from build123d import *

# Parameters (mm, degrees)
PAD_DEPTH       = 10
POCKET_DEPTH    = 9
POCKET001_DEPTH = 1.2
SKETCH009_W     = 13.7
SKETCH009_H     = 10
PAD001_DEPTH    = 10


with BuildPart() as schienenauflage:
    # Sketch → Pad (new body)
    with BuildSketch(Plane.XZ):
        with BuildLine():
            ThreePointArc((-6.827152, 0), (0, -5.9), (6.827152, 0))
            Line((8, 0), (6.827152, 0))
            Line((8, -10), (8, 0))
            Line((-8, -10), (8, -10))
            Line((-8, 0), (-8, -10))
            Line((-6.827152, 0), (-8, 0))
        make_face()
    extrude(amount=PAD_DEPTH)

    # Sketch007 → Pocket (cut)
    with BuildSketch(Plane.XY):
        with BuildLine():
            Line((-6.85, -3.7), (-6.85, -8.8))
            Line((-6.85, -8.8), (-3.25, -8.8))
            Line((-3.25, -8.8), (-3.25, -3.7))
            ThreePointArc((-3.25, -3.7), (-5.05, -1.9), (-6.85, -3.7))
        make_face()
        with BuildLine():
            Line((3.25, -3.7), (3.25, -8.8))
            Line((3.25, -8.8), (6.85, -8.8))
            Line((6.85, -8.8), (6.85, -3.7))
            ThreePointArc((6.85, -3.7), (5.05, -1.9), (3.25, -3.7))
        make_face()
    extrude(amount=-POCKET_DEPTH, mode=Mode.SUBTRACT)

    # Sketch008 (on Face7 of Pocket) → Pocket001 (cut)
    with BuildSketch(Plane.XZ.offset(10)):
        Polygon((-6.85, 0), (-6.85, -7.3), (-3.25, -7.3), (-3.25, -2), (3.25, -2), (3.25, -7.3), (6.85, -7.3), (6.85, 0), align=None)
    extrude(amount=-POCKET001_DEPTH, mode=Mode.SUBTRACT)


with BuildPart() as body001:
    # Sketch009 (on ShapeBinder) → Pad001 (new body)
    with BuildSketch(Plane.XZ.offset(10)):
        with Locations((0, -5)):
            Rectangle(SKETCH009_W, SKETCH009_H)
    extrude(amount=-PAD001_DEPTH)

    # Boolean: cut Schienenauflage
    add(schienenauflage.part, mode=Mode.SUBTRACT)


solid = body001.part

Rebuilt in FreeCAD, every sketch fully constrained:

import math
import FreeCAD as App
import Part
import Sketcher
from FreeCAD import Vector
Q = App.Units.Quantity


def add_polygon(sketch, points):
    """Adds a closed chain of lines whose ends are joined by coincident constraints."""
    first, n = sketch.GeometryCount, len(points)
    for a, b in zip(points, points[1:] + points[:1]):
        sketch.addGeometry(Part.LineSegment(App.Vector(*a, 0), App.Vector(*b, 0)), False)
    for i in range(n):
        sketch.addConstraint(Sketcher.Constraint("Coincident", first + i, 2, first + (i + 1) % n, 1))

doc = App.newDocument("Part")
body = doc.addObject("PartDesign::Body", "Body")

# Sketch on XZ plane
sketch1 = body.newObject("Sketcher::SketchObject", "Sketch")
sketch1.AttachmentSupport = (doc.getObject("XZ_Plane"), [""])
sketch1.MapMode = "FlatFace"
sketch1.addGeometry([
    Part.ArcOfCircle(Part.Circle(Vector(0, 1, 0), Vector(0, 0, 1), 6.9), math.radians(-172), math.radians(-8)),  # 0
    Part.LineSegment(Vector(-6.8, 0, 0), Vector(-8, 0, 0)),  # 1
    Part.LineSegment(Vector(-8, 0, 0), Vector(-8, -10, 0)),  # 2
    Part.LineSegment(Vector(-8, -10, 0), Vector(8, -10, 0)),  # 3
    Part.LineSegment(Vector(8, -10, 0), Vector(8, 0, 0)),  # 4
    Part.LineSegment(Vector(8, 0, 0), Vector(6.8, 0, 0)),  # 5
], False)
sketch1.addConstraint([
    Sketcher.Constraint("Coincident", 0, 1, 1, 1),
    Sketcher.Constraint("Coincident", 1, 2, 2, 1),
    Sketcher.Constraint("Coincident", 2, 2, 3, 1),
    Sketcher.Constraint("Coincident", 3, 2, 4, 1),
    Sketcher.Constraint("Coincident", 4, 2, 5, 1),
    Sketcher.Constraint("Coincident", 5, 2, 0, 2),
    Sketcher.Constraint("Horizontal", 1),
    Sketcher.Constraint("Vertical", 2),
    Sketcher.Constraint("Horizontal", 3),
    Sketcher.Constraint("Vertical", 4),
    Sketcher.Constraint("Horizontal", 5),
    Sketcher.Constraint("Symmetric", 1, 2, 4, 2, -1, 1),
    Sketcher.Constraint("Symmetric", 0, 1, 5, 2, -2),
    Sketcher.Constraint("Radius", 0, Q("6.9 mm")),
    Sketcher.Constraint("DistanceX", 3, 1, 3, 2, Q("16 mm")),
    Sketcher.Constraint("DistanceY", 2, 2, 2, 1, Q("10 mm")),
    Sketcher.Constraint("DistanceY", -1, 1, 0, 3, Q("1 mm")),
])
pad1 = body.newObject("PartDesign::Pad", "Pad")
pad1.Profile = sketch1
pad1.Length = 10

# Sketch on XY plane
sketch2 = body.newObject("Sketcher::SketchObject", "Sketch001")
sketch2.AttachmentSupport = (doc.getObject("XY_Plane"), [""])
sketch2.MapMode = "FlatFace"
sketch2.addGeometry([
    Part.LineSegment(Vector(-6.8, -3.7, 0), Vector(-6.8, -8.8, 0)),  # 0
    Part.LineSegment(Vector(-6.8, -8.8, 0), Vector(-3.2, -8.8, 0)),  # 1
    Part.LineSegment(Vector(-3.2, -8.8, 0), Vector(-3.2, -3.7, 0)),  # 2
    Part.ArcOfCircle(Part.Circle(Vector(-5, -3.7, 0), Vector(0, 0, 1), 1.8), math.radians(0), math.radians(180)),  # 3
    Part.LineSegment(Vector(3.2, -3.7, 0), Vector(3.2, -8.8, 0)),  # 4
    Part.LineSegment(Vector(3.2, -8.8, 0), Vector(6.8, -8.8, 0)),  # 5
    Part.LineSegment(Vector(6.8, -8.8, 0), Vector(6.8, -3.7, 0)),  # 6
    Part.ArcOfCircle(Part.Circle(Vector(5, -3.7, 0), Vector(0, 0, 1), 1.8), math.radians(0), math.radians(180)),  # 7
], False)
sketch2.addConstraint([
    Sketcher.Constraint("Coincident", 0, 2, 1, 1),
    Sketcher.Constraint("Coincident", 1, 2, 2, 1),
    Sketcher.Constraint("Tangent", 2, 2, 3, 1),
    Sketcher.Constraint("Tangent", 3, 2, 0, 1),
    Sketcher.Constraint("Coincident", 4, 2, 5, 1),
    Sketcher.Constraint("Coincident", 5, 2, 6, 1),
    Sketcher.Constraint("Tangent", 6, 2, 7, 1),
    Sketcher.Constraint("Tangent", 7, 2, 4, 1),
    Sketcher.Constraint("Vertical", 0),
    Sketcher.Constraint("Horizontal", 1),
    Sketcher.Constraint("Vertical", 2),
    Sketcher.Constraint("Vertical", 4),
    Sketcher.Constraint("Horizontal", 5),
    Sketcher.Constraint("Vertical", 6),
    Sketcher.Constraint("Equal", 3, 7),
    Sketcher.Constraint("Symmetric", 3, 3, 7, 3, -2),
    Sketcher.Constraint("Horizontal", 1, 2, 4, 2),
    Sketcher.Constraint("Radius", 3, Q("1.8 mm")),
    Sketcher.Constraint("DistanceY", 0, 2, 0, 1, Q("5.1 mm")),
    Sketcher.Constraint("DistanceY", 3, 3, -1, 1, Q("3.7 mm")),
    Sketcher.Constraint("DistanceX", 3, 3, 7, 3, Q("10.1 mm")),
])
pocket1 = body.newObject("PartDesign::Pocket", "Pocket")
pocket1.Profile = sketch2
pocket1.Length = 9

# Sketch on XZ plane
sketch3 = body.newObject("Sketcher::SketchObject", "Sketch002")
sketch3.AttachmentSupport = (doc.getObject("XZ_Plane"), [""])
sketch3.MapMode = "FlatFace"
sketch3.AttachmentOffset = App.Placement(Vector(0, 0, 10), App.Rotation())
add_polygon(sketch3, [(-6.8, 0), (-6.8, -7.3), (-3.2, -7.3), (-3.2, -2), (3.2, -2), (3.2, -7.3), (6.8, -7.3), (6.8, 0)])  # lines 0-7
sketch3.addConstraint([
    Sketcher.Constraint("Vertical", 0),
    Sketcher.Constraint("Horizontal", 1),
    Sketcher.Constraint("Vertical", 2),
    Sketcher.Constraint("Horizontal", 3),
    Sketcher.Constraint("Vertical", 4),
    Sketcher.Constraint("Horizontal", 5),
    Sketcher.Constraint("Vertical", 6),
    Sketcher.Constraint("Horizontal", 7),
    Sketcher.Constraint("Symmetric", 6, 2, 7, 2, -1, 1),
    Sketcher.Constraint("Symmetric", 1, 2, 4, 2, -2),
    Sketcher.Constraint("DistanceX", 1, 1, 1, 2, Q("3.6 mm")),
    Sketcher.Constraint("DistanceX", 3, 1, 3, 2, Q("6.5 mm")),
    Sketcher.Constraint("DistanceY", 0, 2, 0, 1, Q("7.3 mm")),
    Sketcher.Constraint("DistanceY", 2, 1, 2, 2, Q("5.3 mm")),
])
pocket2 = body.newObject("PartDesign::Pocket", "Pocket001")
pocket2.Profile = sketch3
pocket2.Length = 1.2
body2 = doc.addObject("PartDesign::Body", "Body001")

# Sketch on XZ plane
sketch4 = body2.newObject("Sketcher::SketchObject", "Sketch003")
sketch4.AttachmentSupport = (doc.getObject("XZ_Plane001"), [""])
sketch4.MapMode = "FlatFace"
sketch4.AttachmentOffset = App.Placement(Vector(0, 0, 10), App.Rotation())
add_polygon(sketch4, [(-7, 0), (-7, -10), (7, -10), (7, 0)])  # lines 0-3
sketch4.addConstraint([
    Sketcher.Constraint("Vertical", 0),
    Sketcher.Constraint("Horizontal", 1),
    Sketcher.Constraint("Vertical", 2),
    Sketcher.Constraint("Horizontal", 3),
    Sketcher.Constraint("Symmetric", 2, 2, 3, 2, -1, 1),
    Sketcher.Constraint("DistanceY", 0, 2, 0, 1, Q("10 mm")),
    Sketcher.Constraint("DistanceX", 1, 1, 1, 2, Q("13.7 mm")),
])
pad2 = body2.newObject("PartDesign::Pad", "Pad001")
pad2.Profile = sketch4
pad2.Length = 10
pad2.Reversed = True
doc.recompute()

boolean = body2.newObject("PartDesign::Boolean", "Boolean")
boolean.Type = "Cut"
boolean.addObjects([body])

doc.recompute()
